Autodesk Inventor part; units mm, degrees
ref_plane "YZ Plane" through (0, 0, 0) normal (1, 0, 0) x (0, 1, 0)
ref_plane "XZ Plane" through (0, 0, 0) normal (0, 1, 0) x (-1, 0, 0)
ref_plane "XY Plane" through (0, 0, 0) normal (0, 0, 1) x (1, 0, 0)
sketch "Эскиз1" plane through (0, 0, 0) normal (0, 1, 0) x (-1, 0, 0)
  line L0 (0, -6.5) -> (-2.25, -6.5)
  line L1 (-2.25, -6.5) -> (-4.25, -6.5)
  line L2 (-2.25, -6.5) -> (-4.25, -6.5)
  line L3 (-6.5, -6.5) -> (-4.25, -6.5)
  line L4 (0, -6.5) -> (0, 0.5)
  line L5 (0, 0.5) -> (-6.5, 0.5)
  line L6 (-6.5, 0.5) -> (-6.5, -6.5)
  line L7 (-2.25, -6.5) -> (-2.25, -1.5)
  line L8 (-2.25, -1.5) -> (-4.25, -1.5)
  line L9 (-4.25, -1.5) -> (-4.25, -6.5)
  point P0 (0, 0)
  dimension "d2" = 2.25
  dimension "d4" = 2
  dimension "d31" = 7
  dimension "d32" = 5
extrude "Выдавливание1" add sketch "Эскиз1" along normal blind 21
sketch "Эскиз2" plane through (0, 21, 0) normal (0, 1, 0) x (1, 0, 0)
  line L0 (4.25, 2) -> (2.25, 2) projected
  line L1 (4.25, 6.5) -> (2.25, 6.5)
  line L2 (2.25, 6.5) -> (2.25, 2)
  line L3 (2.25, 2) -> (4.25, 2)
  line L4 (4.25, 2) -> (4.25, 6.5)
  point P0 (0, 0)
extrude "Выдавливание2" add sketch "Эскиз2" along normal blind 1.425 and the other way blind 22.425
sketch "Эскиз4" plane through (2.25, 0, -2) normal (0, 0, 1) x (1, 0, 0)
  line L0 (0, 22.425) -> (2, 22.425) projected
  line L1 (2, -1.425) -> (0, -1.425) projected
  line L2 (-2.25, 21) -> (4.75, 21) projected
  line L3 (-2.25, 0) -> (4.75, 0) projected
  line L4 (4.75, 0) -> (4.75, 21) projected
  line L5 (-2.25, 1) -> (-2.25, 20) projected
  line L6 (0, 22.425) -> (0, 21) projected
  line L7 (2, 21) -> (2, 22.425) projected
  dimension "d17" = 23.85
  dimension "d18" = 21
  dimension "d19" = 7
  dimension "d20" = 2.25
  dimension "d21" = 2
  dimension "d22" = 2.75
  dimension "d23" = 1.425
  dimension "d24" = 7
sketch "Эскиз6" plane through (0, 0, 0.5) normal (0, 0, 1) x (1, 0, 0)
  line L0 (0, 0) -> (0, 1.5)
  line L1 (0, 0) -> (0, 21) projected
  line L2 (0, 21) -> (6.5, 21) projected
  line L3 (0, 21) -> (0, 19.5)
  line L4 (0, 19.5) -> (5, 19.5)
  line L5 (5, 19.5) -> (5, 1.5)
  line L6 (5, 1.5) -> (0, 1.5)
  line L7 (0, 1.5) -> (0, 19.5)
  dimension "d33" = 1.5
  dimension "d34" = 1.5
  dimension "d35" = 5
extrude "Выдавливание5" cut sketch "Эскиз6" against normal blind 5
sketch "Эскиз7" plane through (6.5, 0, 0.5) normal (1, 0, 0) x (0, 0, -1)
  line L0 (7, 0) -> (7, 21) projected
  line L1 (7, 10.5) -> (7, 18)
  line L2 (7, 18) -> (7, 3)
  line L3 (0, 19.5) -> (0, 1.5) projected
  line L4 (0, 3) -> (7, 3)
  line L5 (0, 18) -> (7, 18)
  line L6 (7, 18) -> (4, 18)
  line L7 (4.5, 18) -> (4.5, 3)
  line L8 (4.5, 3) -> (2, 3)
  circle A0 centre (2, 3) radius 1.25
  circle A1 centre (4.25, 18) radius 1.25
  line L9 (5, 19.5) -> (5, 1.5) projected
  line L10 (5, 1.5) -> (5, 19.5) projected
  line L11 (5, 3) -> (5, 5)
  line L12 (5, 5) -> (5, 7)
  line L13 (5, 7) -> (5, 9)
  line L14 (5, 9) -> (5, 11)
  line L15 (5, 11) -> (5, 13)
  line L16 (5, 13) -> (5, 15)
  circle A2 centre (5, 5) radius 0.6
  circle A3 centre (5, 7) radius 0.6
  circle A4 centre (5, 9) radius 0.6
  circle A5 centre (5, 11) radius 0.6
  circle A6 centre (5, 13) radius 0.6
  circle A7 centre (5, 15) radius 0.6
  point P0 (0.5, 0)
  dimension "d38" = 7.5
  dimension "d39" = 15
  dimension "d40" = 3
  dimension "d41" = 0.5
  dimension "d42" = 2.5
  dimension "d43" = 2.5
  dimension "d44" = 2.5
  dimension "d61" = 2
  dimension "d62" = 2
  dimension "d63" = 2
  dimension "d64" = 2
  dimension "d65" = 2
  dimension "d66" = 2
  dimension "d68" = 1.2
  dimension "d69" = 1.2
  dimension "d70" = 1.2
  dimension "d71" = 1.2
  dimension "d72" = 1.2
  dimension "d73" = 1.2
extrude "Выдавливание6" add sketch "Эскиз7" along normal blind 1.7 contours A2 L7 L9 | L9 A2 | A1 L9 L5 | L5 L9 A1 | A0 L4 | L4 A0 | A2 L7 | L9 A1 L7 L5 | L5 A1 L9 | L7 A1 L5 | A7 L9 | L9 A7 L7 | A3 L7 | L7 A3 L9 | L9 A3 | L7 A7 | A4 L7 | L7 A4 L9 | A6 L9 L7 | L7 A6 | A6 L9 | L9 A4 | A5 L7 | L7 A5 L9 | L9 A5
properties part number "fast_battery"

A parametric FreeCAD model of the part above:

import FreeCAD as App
import Part
import Sketcher

V = App.Vector
Q = App.Units.Quantity

doc = App.newDocument("Part")
body = doc.addObject("PartDesign::Body", "Body")

# Sketch on XZ plane
sketch1 = body.newObject("Sketcher::SketchObject", "Sketch")
sketch1.AttachmentSupport = (doc.getObject("XZ_Plane"), [""])
sketch1.MapMode = "FlatFace"
sketch1.addGeometry(Part.LineSegment(V(0, -6.5, 0), V(0, 0.5, 0)), False)
sketch1.addGeometry(Part.LineSegment(V(0, 0.5, 0), V(6.5, 0.5, 0)), False)
sketch1.addGeometry(Part.LineSegment(V(6.5, 0.5, 0), V(6.5, -6.5, 0)), False)
sketch1.addGeometry(Part.LineSegment(V(6.5, -6.5, 0), V(0, -6.5, 0)), False)
sketch1.addConstraint(Sketcher.Constraint("Coincident", 0, 2, 1, 1))
sketch1.addConstraint(Sketcher.Constraint("Coincident", 1, 2, 2, 1))
sketch1.addConstraint(Sketcher.Constraint("Coincident", 2, 2, 3, 1))
sketch1.addConstraint(Sketcher.Constraint("Coincident", 3, 2, 0, 1))
sketch1.addConstraint(Sketcher.Constraint("Vertical", 0))
sketch1.addConstraint(Sketcher.Constraint("Horizontal", 1))
sketch1.addConstraint(Sketcher.Constraint("Vertical", 2))
sketch1.addConstraint(Sketcher.Constraint("Horizontal", 3))
sketch1.addConstraint(Sketcher.Constraint("PointOnObject", 0, 2, -2))
sketch1.addConstraint(Sketcher.Constraint("DistanceY", 0, 1, 0, 2, Q("7 mm")))
sketch1.addConstraint(Sketcher.Constraint("DistanceX", 1, 1, 1, 2, Q("6.5 mm")))
sketch1.addConstraint(Sketcher.Constraint("DistanceY", -1, 1, 0, 2, Q("0.5 mm")))
pad1 = body.newObject("PartDesign::Pad", "Pad")
pad1.Profile = sketch1
pad1.Length = 21
pad1.Reversed = True

# Sketch on XZ plane
sketch2 = body.newObject("Sketcher::SketchObject", "Sketch001")
sketch2.AttachmentSupport = (doc.getObject("XZ_Plane"), [""])
sketch2.MapMode = "FlatFace"
sketch2.AttachmentOffset = App.Placement(V(0, 0, -21), App.Rotation())
sketch2.addGeometry(Part.LineSegment(V(2.25, -2, 0), V(4.25, -2, 0)), False)
sketch2.addGeometry(Part.LineSegment(V(4.25, -2, 0), V(4.25, -6.5, 0)), False)
sketch2.addGeometry(Part.LineSegment(V(4.25, -6.5, 0), V(2.25, -6.5, 0)), False)
sketch2.addGeometry(Part.LineSegment(V(2.25, -6.5, 0), V(2.25, -2, 0)), False)
sketch2.addConstraint(Sketcher.Constraint("Coincident", 0, 2, 1, 1))
sketch2.addConstraint(Sketcher.Constraint("Coincident", 1, 2, 2, 1))
sketch2.addConstraint(Sketcher.Constraint("Coincident", 2, 2, 3, 1))
sketch2.addConstraint(Sketcher.Constraint("Coincident", 3, 2, 0, 1))
sketch2.addConstraint(Sketcher.Constraint("Horizontal", 0))
sketch2.addConstraint(Sketcher.Constraint("Vertical", 1))
sketch2.addConstraint(Sketcher.Constraint("Horizontal", 2))
sketch2.addConstraint(Sketcher.Constraint("Vertical", 3))
sketch2.addConstraint(Sketcher.Constraint("DistanceX", 0, 1, 0, 2, Q("2 mm")))
sketch2.addConstraint(Sketcher.Constraint("DistanceY", 1, 2, 1, 1, Q("4.5 mm")))
sketch2.addConstraint(Sketcher.Constraint("DistanceY", 0, 2, -1, 1, Q("2 mm")))
sketch2.addConstraint(Sketcher.Constraint("DistanceX", -1, 1, 0, 2, Q("4.25 mm")))
pad2 = body.newObject("PartDesign::Pad", "Pad001")
pad2.Profile = sketch2
pad2.Type = "TwoLengths"
pad2.Length = 1.425
pad2.Length2 = 22.425
pad2.Reversed = True

# Sketch on XY plane
sketch3 = body.newObject("Sketcher::SketchObject", "Sketch002")
sketch3.AttachmentSupport = (doc.getObject("XY_Plane"), [""])
sketch3.MapMode = "FlatFace"
sketch3.AttachmentOffset = App.Placement(V(0, 0, 0.5), App.Rotation())
sketch3.addGeometry(Part.LineSegment(V(0, 19.5, 0), V(0, 1.5, 0)), False)
sketch3.addGeometry(Part.LineSegment(V(0, 1.5, 0), V(5, 1.5, 0)), False)
sketch3.addGeometry(Part.LineSegment(V(5, 1.5, 0), V(5, 19.5, 0)), False)
sketch3.addGeometry(Part.LineSegment(V(5, 19.5, 0), V(0, 19.5, 0)), False)
sketch3.addConstraint(Sketcher.Constraint("Coincident", 0, 2, 1, 1))
sketch3.addConstraint(Sketcher.Constraint("Coincident", 1, 2, 2, 1))
sketch3.addConstraint(Sketcher.Constraint("Coincident", 2, 2, 3, 1))
sketch3.addConstraint(Sketcher.Constraint("Coincident", 3, 2, 0, 1))
sketch3.addConstraint(Sketcher.Constraint("Vertical", 0))
sketch3.addConstraint(Sketcher.Constraint("Horizontal", 1))
sketch3.addConstraint(Sketcher.Constraint("Vertical", 2))
sketch3.addConstraint(Sketcher.Constraint("Horizontal", 3))
sketch3.addConstraint(Sketcher.Constraint("PointOnObject", 0, 2, -2))
sketch3.addConstraint(Sketcher.Constraint("DistanceX", 1, 1, 1, 2, Q("5 mm")))
sketch3.addConstraint(Sketcher.Constraint("DistanceY", -1, 1, 0, 2, Q("1.5 mm")))
sketch3.addConstraint(Sketcher.Constraint("DistanceY", 0, 2, 0, 1, Q("18 mm")))
pocket1 = body.newObject("PartDesign::Pocket", "Pocket")
pocket1.Profile = sketch3
pocket1.Length = 5

# Sketch on YZ plane
sketch4 = body.newObject("Sketcher::SketchObject", "Sketch003")
sketch4.AttachmentSupport = (doc.getObject("YZ_Plane"), [""])
sketch4.MapMode = "FlatFace"
sketch4.AttachmentOffset = App.Placement(V(0, 0, 6.5), App.Rotation())
sketch4.addGeometry(Part.Circle(V(5, -4.5, 0), V(0, 0, 1), 0.6), False)
sketch4.addGeometry(Part.Circle(V(18, -3.75, 0), V(0, 0, 1), 1.25), False)
sketch4.addGeometry(Part.Circle(V(3, -1.5, 0), V(0, 0, 1), 1.25), False)
sketch4.addGeometry(Part.Circle(V(15, -4.5, 0), V(0, 0, 1), 0.6), False)
sketch4.addGeometry(Part.Circle(V(7, -4.5, 0), V(0, 0, 1), 0.6), False)
sketch4.addGeometry(Part.Circle(V(9, -4.5, 0), V(0, 0, 1), 0.6), False)
sketch4.addGeometry(Part.Circle(V(13, -4.5, 0), V(0, 0, 1), 0.6), False)
sketch4.addGeometry(Part.Circle(V(11, -4.5, 0), V(0, 0, 1), 0.6), False)
sketch4.addConstraint(Sketcher.Constraint("Equal", 1, 2))
sketch4.addConstraint(Sketcher.Constraint("Equal", 0, 3))
sketch4.addConstraint(Sketcher.Constraint("Equal", 3, 4))
sketch4.addConstraint(Sketcher.Constraint("Equal", 4, 5))
sketch4.addConstraint(Sketcher.Constraint("Equal", 5, 6))
sketch4.addConstraint(Sketcher.Constraint("Equal", 6, 7))
sketch4.addConstraint(Sketcher.Constraint("Horizontal", 0, 3, 3, 3))
sketch4.addConstraint(Sketcher.Constraint("Horizontal", 3, 3, 4, 3))
sketch4.addConstraint(Sketcher.Constraint("Horizontal", 4, 3, 5, 3))
sketch4.addConstraint(Sketcher.Constraint("Horizontal", 5, 3, 6, 3))
sketch4.addConstraint(Sketcher.Constraint("Horizontal", 6, 3, 7, 3))
sketch4.addConstraint(Sketcher.Constraint("Diameter", 0, Q("1.2 mm")))
sketch4.addConstraint(Sketcher.Constraint("Diameter", 1, Q("2.5 mm")))
sketch4.addConstraint(Sketcher.Constraint("DistanceX", -1, 1, 2, 3, Q("3 mm")))
sketch4.addConstraint(Sketcher.Constraint("DistanceX", -1, 1, 3, 3, Q("15 mm")))
sketch4.addConstraint(Sketcher.Constraint("DistanceX", 2, 3, 0, 3, Q("2 mm")))
sketch4.addConstraint(Sketcher.Constraint("DistanceY", 0, 3, 2, 3, Q("3 mm")))
sketch4.addConstraint(Sketcher.Constraint("DistanceX", 2, 3, 1, 3, Q("15 mm")))
sketch4.addConstraint(Sketcher.Constraint("DistanceX", 0, 3, 4, 3, Q("2 mm")))
sketch4.addConstraint(Sketcher.Constraint("DistanceX", 4, 3, 5, 3, Q("2 mm")))
sketch4.addConstraint(Sketcher.Constraint("DistanceX", 6, 3, 3, 3, Q("2 mm")))
sketch4.addConstraint(Sketcher.Constraint("DistanceX", 5, 3, 7, 3, Q("2 mm")))
sketch4.addConstraint(Sketcher.Constraint("DistanceY", 0, 3, -1, 1, Q("4.5 mm")))
sketch4.addConstraint(Sketcher.Constraint("DistanceY", 1, 3, -1, 1, Q("3.75 mm")))
pad3 = body.newObject("PartDesign::Pad", "Pad002")
pad3.Profile = sketch4
pad3.Length = 1.7

doc.recompute()
